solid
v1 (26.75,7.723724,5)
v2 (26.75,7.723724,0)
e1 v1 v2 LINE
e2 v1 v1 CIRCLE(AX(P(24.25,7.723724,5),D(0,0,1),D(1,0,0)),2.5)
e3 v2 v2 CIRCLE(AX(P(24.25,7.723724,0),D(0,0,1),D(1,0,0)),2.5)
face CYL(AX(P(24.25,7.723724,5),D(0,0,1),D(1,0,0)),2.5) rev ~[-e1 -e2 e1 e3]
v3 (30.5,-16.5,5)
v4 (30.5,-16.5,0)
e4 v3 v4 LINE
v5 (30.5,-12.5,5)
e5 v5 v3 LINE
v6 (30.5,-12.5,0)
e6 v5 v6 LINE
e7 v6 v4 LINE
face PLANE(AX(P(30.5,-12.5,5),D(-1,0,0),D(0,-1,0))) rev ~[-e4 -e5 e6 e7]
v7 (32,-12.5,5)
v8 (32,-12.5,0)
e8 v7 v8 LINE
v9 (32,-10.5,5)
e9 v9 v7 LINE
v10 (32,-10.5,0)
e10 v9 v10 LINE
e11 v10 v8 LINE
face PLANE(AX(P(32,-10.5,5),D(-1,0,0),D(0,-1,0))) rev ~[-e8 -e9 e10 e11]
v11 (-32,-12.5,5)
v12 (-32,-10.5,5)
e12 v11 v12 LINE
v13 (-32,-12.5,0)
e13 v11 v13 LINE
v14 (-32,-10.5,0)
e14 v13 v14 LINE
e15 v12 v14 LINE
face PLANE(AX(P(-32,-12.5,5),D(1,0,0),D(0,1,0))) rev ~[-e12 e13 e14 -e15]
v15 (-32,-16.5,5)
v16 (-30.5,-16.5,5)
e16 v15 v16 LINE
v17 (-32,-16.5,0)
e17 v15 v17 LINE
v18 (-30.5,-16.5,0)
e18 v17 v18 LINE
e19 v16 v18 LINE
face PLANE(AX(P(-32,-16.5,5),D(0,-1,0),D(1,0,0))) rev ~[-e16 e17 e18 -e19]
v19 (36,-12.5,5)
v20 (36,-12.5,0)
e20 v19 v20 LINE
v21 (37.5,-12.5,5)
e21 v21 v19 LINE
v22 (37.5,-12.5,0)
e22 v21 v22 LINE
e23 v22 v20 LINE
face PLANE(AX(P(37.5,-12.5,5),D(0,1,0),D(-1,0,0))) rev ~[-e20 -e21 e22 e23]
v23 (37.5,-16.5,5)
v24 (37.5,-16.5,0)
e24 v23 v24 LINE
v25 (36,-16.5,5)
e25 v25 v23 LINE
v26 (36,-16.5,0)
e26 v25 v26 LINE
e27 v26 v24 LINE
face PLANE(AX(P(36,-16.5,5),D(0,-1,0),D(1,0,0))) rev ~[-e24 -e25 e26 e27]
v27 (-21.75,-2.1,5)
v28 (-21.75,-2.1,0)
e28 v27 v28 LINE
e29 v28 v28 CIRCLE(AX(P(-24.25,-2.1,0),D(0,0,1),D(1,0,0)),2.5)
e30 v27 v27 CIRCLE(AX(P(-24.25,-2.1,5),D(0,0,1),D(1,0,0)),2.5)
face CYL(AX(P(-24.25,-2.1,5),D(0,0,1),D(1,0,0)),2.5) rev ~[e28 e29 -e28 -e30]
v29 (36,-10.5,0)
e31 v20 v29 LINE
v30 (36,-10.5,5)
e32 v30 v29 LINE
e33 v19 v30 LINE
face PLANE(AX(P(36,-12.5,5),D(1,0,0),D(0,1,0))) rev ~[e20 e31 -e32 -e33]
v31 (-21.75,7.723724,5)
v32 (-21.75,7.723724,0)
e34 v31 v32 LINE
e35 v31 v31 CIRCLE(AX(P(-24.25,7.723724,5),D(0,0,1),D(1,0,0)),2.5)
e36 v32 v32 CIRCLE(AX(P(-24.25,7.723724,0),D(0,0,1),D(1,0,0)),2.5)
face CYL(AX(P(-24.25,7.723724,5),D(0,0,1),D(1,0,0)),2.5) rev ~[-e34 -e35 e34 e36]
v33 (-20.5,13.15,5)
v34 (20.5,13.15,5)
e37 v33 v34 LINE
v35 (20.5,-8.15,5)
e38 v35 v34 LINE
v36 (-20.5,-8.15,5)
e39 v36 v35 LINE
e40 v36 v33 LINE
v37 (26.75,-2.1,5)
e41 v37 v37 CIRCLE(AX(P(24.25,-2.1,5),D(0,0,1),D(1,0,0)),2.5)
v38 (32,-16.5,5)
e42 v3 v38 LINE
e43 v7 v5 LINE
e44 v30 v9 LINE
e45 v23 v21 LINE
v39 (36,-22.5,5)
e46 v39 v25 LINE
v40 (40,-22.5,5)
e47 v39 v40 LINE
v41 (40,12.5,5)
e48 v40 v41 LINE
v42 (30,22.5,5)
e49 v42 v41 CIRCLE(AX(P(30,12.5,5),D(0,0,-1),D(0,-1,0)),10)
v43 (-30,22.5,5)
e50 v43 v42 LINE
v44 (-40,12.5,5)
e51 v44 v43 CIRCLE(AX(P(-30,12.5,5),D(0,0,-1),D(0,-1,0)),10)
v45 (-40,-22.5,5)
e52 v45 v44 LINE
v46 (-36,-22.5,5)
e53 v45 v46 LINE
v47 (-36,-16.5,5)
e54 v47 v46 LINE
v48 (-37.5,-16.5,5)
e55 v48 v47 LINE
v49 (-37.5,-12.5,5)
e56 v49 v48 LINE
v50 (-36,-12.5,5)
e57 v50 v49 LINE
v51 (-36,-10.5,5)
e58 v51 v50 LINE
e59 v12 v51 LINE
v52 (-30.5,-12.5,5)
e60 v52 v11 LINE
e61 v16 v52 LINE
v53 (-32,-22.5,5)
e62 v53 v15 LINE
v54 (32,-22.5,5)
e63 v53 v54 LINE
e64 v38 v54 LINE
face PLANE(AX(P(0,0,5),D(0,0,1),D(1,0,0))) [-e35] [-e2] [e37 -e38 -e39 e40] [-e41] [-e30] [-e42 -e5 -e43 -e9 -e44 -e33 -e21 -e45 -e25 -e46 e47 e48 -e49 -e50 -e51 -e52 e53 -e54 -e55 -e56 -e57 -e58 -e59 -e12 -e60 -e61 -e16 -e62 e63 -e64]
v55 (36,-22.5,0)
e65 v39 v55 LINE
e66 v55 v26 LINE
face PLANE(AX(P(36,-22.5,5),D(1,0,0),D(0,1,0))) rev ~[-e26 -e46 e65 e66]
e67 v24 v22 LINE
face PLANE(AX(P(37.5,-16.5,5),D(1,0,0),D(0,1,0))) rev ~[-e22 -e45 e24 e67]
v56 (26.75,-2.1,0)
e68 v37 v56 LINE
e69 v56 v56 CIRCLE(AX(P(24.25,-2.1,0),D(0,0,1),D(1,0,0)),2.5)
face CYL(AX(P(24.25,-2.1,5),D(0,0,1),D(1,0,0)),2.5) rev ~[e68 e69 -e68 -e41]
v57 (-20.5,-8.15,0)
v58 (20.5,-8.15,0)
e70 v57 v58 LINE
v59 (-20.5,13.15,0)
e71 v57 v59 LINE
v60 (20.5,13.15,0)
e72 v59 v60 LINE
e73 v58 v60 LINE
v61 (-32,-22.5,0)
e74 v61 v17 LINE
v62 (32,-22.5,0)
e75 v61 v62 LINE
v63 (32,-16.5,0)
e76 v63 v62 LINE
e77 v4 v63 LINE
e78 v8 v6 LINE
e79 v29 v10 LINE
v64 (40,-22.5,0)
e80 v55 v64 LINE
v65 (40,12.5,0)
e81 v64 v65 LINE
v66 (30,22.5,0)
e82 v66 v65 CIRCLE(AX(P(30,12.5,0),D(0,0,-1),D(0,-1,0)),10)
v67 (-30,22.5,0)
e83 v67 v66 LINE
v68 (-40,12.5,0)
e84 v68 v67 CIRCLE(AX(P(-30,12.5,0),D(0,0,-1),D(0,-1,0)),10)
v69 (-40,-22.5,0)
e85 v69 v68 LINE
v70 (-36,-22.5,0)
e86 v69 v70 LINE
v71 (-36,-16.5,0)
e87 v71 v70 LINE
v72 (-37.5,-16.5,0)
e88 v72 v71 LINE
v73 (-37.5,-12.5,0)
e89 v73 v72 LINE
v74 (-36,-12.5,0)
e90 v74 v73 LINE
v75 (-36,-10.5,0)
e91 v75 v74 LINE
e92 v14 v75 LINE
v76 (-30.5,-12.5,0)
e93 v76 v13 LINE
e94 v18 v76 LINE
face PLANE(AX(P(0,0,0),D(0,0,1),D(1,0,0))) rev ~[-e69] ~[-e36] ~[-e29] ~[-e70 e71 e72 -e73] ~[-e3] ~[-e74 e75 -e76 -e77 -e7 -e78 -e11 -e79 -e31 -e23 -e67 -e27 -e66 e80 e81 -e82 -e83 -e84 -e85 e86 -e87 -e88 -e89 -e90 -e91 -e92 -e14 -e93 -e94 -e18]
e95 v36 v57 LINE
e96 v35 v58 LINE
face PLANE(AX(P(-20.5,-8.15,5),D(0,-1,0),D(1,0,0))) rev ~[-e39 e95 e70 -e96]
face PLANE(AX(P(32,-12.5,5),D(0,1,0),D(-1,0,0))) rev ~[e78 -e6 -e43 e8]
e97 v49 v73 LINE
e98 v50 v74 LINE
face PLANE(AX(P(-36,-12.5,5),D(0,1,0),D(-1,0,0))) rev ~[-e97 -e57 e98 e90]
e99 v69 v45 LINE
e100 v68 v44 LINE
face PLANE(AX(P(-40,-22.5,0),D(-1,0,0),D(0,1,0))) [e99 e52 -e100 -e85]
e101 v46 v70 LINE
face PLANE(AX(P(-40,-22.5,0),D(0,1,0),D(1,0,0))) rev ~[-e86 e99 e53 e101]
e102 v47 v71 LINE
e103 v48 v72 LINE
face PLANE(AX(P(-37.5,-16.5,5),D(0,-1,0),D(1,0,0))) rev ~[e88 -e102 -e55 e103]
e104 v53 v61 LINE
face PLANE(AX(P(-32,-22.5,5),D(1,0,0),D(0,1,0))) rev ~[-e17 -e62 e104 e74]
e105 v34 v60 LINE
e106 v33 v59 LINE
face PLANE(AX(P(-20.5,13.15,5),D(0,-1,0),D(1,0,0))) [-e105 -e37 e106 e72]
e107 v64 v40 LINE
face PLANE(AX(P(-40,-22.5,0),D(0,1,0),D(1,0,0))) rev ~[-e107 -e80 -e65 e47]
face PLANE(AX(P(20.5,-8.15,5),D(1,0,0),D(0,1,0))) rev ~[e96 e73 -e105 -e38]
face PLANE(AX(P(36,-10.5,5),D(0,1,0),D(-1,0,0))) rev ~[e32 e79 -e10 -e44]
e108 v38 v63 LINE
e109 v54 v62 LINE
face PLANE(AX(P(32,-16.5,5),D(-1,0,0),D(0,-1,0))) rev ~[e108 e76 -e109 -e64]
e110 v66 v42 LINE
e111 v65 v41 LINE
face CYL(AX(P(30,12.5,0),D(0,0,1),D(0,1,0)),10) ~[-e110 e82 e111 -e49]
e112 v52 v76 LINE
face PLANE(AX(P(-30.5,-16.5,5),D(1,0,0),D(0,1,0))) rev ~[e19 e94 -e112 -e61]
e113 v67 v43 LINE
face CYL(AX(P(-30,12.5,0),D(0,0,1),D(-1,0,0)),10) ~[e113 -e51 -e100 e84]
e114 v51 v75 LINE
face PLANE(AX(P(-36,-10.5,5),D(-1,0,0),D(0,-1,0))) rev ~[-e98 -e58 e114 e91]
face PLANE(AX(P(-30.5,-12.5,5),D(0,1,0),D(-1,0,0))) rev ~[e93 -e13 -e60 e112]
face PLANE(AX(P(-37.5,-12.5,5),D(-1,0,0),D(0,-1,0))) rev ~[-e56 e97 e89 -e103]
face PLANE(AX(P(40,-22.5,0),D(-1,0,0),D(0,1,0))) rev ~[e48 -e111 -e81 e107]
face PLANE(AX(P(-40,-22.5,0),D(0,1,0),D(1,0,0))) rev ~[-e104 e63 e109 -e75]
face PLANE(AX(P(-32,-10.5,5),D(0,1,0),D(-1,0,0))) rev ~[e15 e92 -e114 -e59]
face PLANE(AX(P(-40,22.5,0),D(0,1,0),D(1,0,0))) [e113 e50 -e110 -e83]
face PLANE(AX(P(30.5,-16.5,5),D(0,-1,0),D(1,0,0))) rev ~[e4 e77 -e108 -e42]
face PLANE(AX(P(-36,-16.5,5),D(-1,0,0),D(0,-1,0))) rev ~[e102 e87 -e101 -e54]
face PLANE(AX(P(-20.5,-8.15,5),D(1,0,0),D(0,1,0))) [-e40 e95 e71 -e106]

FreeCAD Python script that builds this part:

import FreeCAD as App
import Part
import Sketcher
from FreeCAD import Vector


def edges_at(feature, points):
    """Names of the edges that pass closest to the given points."""
    edges = feature.Shape.Edges
    near = lambda p: min(range(len(edges)), key=lambda i: edges[i].distToShape(Part.Vertex(*p))[0])
    return sorted({f"Edge{near(p) + 1}" for p in points})


def add_polygon(sketch, points):
    """Adds a closed chain of lines whose ends are joined by coincident constraints."""
    first, n = sketch.GeometryCount, len(points)
    for a, b in zip(points, points[1:] + points[:1]):
        sketch.addGeometry(Part.LineSegment(App.Vector(*a, 0), App.Vector(*b, 0)), False)
    for i in range(n):
        sketch.addConstraint(Sketcher.Constraint("Coincident", first + i, 2, first + (i + 1) % n, 1))

doc = App.newDocument("Part")
body = doc.addObject("PartDesign::Body", "Body")

# Sketch on XY plane
sketch1 = doc.addObject("Sketcher::SketchObject", "Sketch")
body.addObject(sketch1)
sketch1.AttachmentSupport = (doc.XY_Plane, [""])
sketch1.MapMode = "FlatFace"
add_polygon(sketch1, [(-40, 22.5), (-40, -22.5), (40, -22.5), (40, 22.5)])  # lines 0-3
sketch1.addConstraint([
    Sketcher.Constraint("Vertical", 0),
    Sketcher.Constraint("Horizontal", 1),
    Sketcher.Constraint("Vertical", 2),
    Sketcher.Constraint("Horizontal", 3),
    Sketcher.Constraint("Symmetric", 0, 2, 2, 2, -1, 1),
    Sketcher.Constraint("DistanceX", 1, 1, 1, 2, 80.0),
    Sketcher.Constraint("DistanceY", 0, 2, 0, 1, 45.0),
])
pad1 = doc.addObject("PartDesign::Pad", "Pad")
body.addObject(pad1)
pad1.Profile = sketch1
pad1.Length = 5

# Sketch on XY plane
sketch2 = doc.addObject("Sketcher::SketchObject", "Sketch001")
body.addObject(sketch2)
sketch2.AttachmentSupport = (doc.XY_Plane, [""])
sketch2.MapMode = "FlatFace"
sketch2.AttachmentOffset = App.Placement(Vector(0, 0, 5), App.Rotation())
sketch2.addGeometry(Part.Circle(Vector(-24.25, -2.1, 0), Vector(0, 0, 1), 2.5), False)  # 0
sketch2.addGeometry(Part.Circle(Vector(-24.25, 7.723724, 0), Vector(0, 0, 1), 2.5), False)  # 1
sketch2.addGeometry(Part.Circle(Vector(24.25, 7.723724, 0), Vector(0, 0, 1), 2.5), False)  # 2
sketch2.addGeometry(Part.Circle(Vector(24.25, -2.1, 0), Vector(0, 0, 1), 2.5), False)  # 3
add_polygon(sketch2, [(-20.5, 13.15), (-20.5, -8.15), (20.5, -8.15), (20.5, 13.15)])  # lines 4-7
sketch2.addConstraint([
    Sketcher.Constraint("Vertical", 4),
    Sketcher.Constraint("Horizontal", 5),
    Sketcher.Constraint("Vertical", 6),
    Sketcher.Constraint("Horizontal", 7),
    Sketcher.Constraint("Equal", 0, 1),
    Sketcher.Constraint("Equal", 1, 2),
    Sketcher.Constraint("Equal", 2, 3),
    Sketcher.Constraint("Symmetric", 1, 3, 2, 3, -2),
    Sketcher.Constraint("Symmetric", 0, 3, 3, 3, -2),
    Sketcher.Constraint("Vertical", 0, 3, 1, 3),
    Sketcher.Constraint("Diameter", 0, 5.0),
    Sketcher.Constraint("DistanceX", 5, 1, 5, 2, 41.0),
    Sketcher.Constraint("DistanceY", 4, 2, 4, 1, 21.3),
    Sketcher.Constraint("DistanceY", 0, 3, -1, 1, 2.1),
    Sketcher.Constraint("DistanceX", 4, 2, -1, 1, 20.5),
    Sketcher.Constraint("DistanceX", 1, 3, 2, 3, 48.5),
    Sketcher.Constraint("DistanceY", 4, 2, -1, 1, 8.15),
    Sketcher.Constraint("DistanceY", -1, 1, 1, 3, 7.723724),
])
pocket1 = doc.addObject("PartDesign::Pocket", "Pocket")
body.addObject(pocket1)
pocket1.Profile = sketch2
pocket1.Length = 10

# Sketch on XY plane
sketch3 = doc.addObject("Sketcher::SketchObject", "Sketch002")
body.addObject(sketch3)
sketch3.AttachmentSupport = (doc.XY_Plane, [""])
sketch3.MapMode = "FlatFace"
sketch3.AttachmentOffset = App.Placement(Vector(0, 0, 5), App.Rotation())
add_polygon(sketch3, [(-36, -16.5), (-36, -22.5), (-32, -22.5), (-32, -16.5), (-30.5, -16.5), (-30.5, -12.5), (-32, -12.5), (-32, -10.5), (-36, -10.5), (-36, -12.5), (-37.5, -12.5), (-37.5, -16.5)])  # lines 0-11
add_polygon(sketch3, [(32, -16.5), (32, -22.5), (36, -22.5), (36, -16.5), (37.5, -16.5), (37.5, -12.5), (36, -12.5), (36, -10.5), (32, -10.5), (32, -12.5), (30.5, -12.5), (30.5, -16.5)])  # lines 12-23
sketch3.addConstraint([
    Sketcher.Constraint("Vertical", 0),
    Sketcher.Constraint("Horizontal", 1),
    Sketcher.Constraint("Vertical", 2),
    Sketcher.Constraint("Horizontal", 3),
    Sketcher.Constraint("Vertical", 4),
    Sketcher.Constraint("Horizontal", 5),
    Sketcher.Constraint("Vertical", 6),
    Sketcher.Constraint("Horizontal", 7),
    Sketcher.Constraint("Vertical", 8),
    Sketcher.Constraint("Horizontal", 9),
    Sketcher.Constraint("Vertical", 10),
    Sketcher.Constraint("Horizontal", 11),
    Sketcher.Constraint("Vertical", 12),
    Sketcher.Constraint("Horizontal", 13),
    Sketcher.Constraint("Vertical", 14),
    Sketcher.Constraint("Horizontal", 15),
    Sketcher.Constraint("Vertical", 16),
    Sketcher.Constraint("Horizontal", 17),
    Sketcher.Constraint("Vertical", 18),
    Sketcher.Constraint("Horizontal", 19),
    Sketcher.Constraint("Vertical", 20),
    Sketcher.Constraint("Horizontal", 21),
    Sketcher.Constraint("Vertical", 22),
    Sketcher.Constraint("Horizontal", 23),
    Sketcher.Constraint("Symmetric", 1, 2, 12, 2, -2),
    Sketcher.Constraint("Symmetric", 11, 2, 14, 2, -2),
    Sketcher.Constraint("Symmetric", 9, 2, 16, 2, -2),
    Sketcher.Constraint("Symmetric", 7, 2, 18, 2, -2),
    Sketcher.Constraint("Symmetric", 5, 2, 20, 2, -2),
    Sketcher.Constraint("Symmetric", 3, 2, 22, 2, -2),
    Sketcher.Constraint("Horizontal", 5, 2, 8, 2),
    Sketcher.Constraint("Horizontal", 3, 2, 10, 2),
    Sketcher.Constraint("Vertical", 2, 2, 5, 2),
    Sketcher.Constraint("Vertical", 0, 2, 7, 2),
    Sketcher.Constraint("Equal", 5, 9),
    Sketcher.Constraint("Equal", 19, 4),
    Sketcher.Constraint("DistanceX", 1, 1, 1, 2, 4.0),
    Sketcher.Constraint("DistanceY", 0, 2, 0, 1, 6.0),
    Sketcher.Constraint("DistanceY", 6, 1, 6, 2, 2.0),
    Sketcher.Constraint("DistanceX", 3, 1, 3, 2, 1.5),
    Sketcher.Constraint("DistanceX", 0, 2, -1, 1, 36.0),
    Sketcher.Constraint("DistanceY", 0, 2, -1, 1, 22.5),
])
pocket2 = doc.addObject("PartDesign::Pocket", "Pocket001")
body.addObject(pocket2)
pocket2.Profile = sketch3
pocket2.Length = 10
doc.recompute()

fillet = doc.addObject("PartDesign::Fillet", "Fillet")
body.addObject(fillet)
fillet.Base = (pocket2, edges_at(pocket2, [(-40, 22.5, 2.5), (40, 22.5, 2.5)]))
fillet.Radius = 10

doc.recompute()
